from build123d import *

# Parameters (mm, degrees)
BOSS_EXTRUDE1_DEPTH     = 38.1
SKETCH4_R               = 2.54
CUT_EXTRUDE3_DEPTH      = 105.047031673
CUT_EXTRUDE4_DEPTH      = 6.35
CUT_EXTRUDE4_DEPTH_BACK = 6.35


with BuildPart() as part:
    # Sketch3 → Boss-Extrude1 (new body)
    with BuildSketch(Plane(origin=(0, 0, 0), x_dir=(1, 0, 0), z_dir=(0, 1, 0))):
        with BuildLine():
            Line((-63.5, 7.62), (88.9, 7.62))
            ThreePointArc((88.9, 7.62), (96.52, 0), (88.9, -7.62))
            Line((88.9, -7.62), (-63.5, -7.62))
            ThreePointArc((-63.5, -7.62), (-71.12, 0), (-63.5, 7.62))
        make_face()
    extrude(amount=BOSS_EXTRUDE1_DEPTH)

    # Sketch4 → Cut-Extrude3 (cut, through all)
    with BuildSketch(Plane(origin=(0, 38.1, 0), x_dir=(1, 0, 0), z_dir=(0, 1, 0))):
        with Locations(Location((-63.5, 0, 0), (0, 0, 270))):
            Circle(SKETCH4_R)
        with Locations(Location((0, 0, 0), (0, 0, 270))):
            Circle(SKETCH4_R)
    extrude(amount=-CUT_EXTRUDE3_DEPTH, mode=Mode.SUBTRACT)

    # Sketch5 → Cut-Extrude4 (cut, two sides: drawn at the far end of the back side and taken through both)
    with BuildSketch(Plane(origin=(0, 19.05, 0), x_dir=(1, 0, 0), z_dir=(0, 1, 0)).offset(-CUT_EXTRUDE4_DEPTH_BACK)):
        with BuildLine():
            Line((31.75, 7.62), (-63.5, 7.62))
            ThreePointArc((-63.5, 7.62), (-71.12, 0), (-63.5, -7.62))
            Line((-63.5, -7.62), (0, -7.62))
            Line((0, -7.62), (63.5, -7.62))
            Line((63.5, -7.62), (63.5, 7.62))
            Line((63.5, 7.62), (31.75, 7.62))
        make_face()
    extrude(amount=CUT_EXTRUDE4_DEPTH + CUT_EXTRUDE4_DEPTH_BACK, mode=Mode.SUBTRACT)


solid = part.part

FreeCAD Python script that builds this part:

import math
import FreeCAD as App
import Part
import Sketcher

V = App.Vector
Q = App.Units.Quantity

doc = App.newDocument("Part")
body = doc.addObject("PartDesign::Body", "Body")

sketch1 = doc.addObject("Sketcher::SketchObject", "Sketch")
body.addObject(sketch1)
sketch1.AttachmentSupport = (doc.XZ_Plane, [""])
sketch1.MapMode = "FlatFace"
sketch1.addGeometry([
    Part.LineSegment(V(88.9, -7.62, 0), V(-63.5, -7.62, 0)),
    Part.ArcOfCircle(Part.Circle(V(-63.5, 0, 0), V(0, 0, 1), 7.62), math.radians(90), math.radians(270)),
    Part.LineSegment(V(-63.5, 7.62, 0), V(88.9, 7.62, 0)),
    Part.ArcOfCircle(Part.Circle(V(88.9, 0, 0), V(0, 0, 1), 7.62), math.radians(-90), math.radians(90)),
], False)
sketch1.addConstraint([
    Sketcher.Constraint("Tangent", 0, 2, 1, 2),
    Sketcher.Constraint("Tangent", 1, 1, 2, 1),
    Sketcher.Constraint("Tangent", 2, 2, 3, 2),
    Sketcher.Constraint("Tangent", 3, 1, 0, 1),
    Sketcher.Constraint("Horizontal", 0),
    Sketcher.Constraint("Horizontal", 2),
    Sketcher.Constraint("PointOnObject", 1, 3, -1),
    Sketcher.Constraint("Radius", 1, Q("0.3 in")),
    Sketcher.Constraint("DistanceX", 0, 2, 0, 1, Q("6 in")),
    Sketcher.Constraint("DistanceX", 1, 3, -1, 1, Q("2.5 in")),
])
pad1 = doc.addObject("PartDesign::Pad", "Pad")
body.addObject(pad1)
pad1.Profile = sketch1
pad1.Length = Q("1.5 in")
pad1.Reversed = True

sketch2 = doc.addObject("Sketcher::SketchObject", "Sketch001")
body.addObject(sketch2)
sketch2.AttachmentSupport = (doc.XZ_Plane, [""])
sketch2.MapMode = "FlatFace"
sketch2.AttachmentOffset = App.Placement(V(0, 0, -1.5 * 25.4), App.Rotation())
sketch2.addGeometry([
    Part.Circle(V(-63.5, 0, 0), V(0, 0, 1), 2.54),
    Part.Circle(V(0, 0, 0), V(0, 0, 1), 2.54),
], False)
sketch2.addConstraint([
    Sketcher.Constraint("Coincident", 1, 3, -1, 1),
    Sketcher.Constraint("Equal", 0, 1),
    Sketcher.Constraint("PointOnObject", 0, 3, -1),
    Sketcher.Constraint("Diameter", 0, Q("0.2 in")),
    Sketcher.Constraint("DistanceX", 0, 3, -1, 1, Q("2.5 in")),
])
pocket1 = doc.addObject("PartDesign::Pocket", "Pocket")
body.addObject(pocket1)
pocket1.Profile = sketch2
pocket1.Type = "ThroughAll"
pocket1.Reversed = True

sketch3 = doc.addObject("Sketcher::SketchObject", "Sketch002")
body.addObject(sketch3)
sketch3.AttachmentSupport = (doc.XZ_Plane, [""])
sketch3.MapMode = "FlatFace"
sketch3.AttachmentOffset = App.Placement(V(0, 0, -0.75 * 25.4), App.Rotation())
sketch3.addGeometry([
    Part.ArcOfCircle(Part.Circle(V(-63.5, 0, 0), V(0, 0, 1), 7.62), math.radians(90), math.radians(270)),
    Part.LineSegment(V(-63.5, 7.62, 0), V(63.5, 7.62, 0)),
    Part.LineSegment(V(63.5, 7.62, 0), V(63.5, -7.62, 0)),
    Part.LineSegment(V(63.5, -7.62, 0), V(-63.5, -7.62, 0)),
], False)
sketch3.addConstraint([
    Sketcher.Constraint("Tangent", 0, 1, 1, 1),
    Sketcher.Constraint("Coincident", 1, 2, 2, 1),
    Sketcher.Constraint("Coincident", 2, 2, 3, 1),
    Sketcher.Constraint("Tangent", 3, 2, 0, 2),
    Sketcher.Constraint("Horizontal", 1),
    Sketcher.Constraint("Vertical", 2),
    Sketcher.Constraint("Horizontal", 3),
    Sketcher.Constraint("Symmetric", 0, 1, 2, 2, -1, 1),
    Sketcher.Constraint("Radius", 0, Q("0.3 in")),
    Sketcher.Constraint("DistanceX", 1, 1, 1, 2, Q("5 in")),
])
pocket2 = doc.addObject("PartDesign::Pocket", "Pocket001")
body.addObject(pocket2)
pocket2.Profile = sketch3
pocket2.Type = "TwoLengths"
pocket2.Length = Q("0.25 in")
pocket2.Length2 = Q("0.25 in")

doc.recompute()
